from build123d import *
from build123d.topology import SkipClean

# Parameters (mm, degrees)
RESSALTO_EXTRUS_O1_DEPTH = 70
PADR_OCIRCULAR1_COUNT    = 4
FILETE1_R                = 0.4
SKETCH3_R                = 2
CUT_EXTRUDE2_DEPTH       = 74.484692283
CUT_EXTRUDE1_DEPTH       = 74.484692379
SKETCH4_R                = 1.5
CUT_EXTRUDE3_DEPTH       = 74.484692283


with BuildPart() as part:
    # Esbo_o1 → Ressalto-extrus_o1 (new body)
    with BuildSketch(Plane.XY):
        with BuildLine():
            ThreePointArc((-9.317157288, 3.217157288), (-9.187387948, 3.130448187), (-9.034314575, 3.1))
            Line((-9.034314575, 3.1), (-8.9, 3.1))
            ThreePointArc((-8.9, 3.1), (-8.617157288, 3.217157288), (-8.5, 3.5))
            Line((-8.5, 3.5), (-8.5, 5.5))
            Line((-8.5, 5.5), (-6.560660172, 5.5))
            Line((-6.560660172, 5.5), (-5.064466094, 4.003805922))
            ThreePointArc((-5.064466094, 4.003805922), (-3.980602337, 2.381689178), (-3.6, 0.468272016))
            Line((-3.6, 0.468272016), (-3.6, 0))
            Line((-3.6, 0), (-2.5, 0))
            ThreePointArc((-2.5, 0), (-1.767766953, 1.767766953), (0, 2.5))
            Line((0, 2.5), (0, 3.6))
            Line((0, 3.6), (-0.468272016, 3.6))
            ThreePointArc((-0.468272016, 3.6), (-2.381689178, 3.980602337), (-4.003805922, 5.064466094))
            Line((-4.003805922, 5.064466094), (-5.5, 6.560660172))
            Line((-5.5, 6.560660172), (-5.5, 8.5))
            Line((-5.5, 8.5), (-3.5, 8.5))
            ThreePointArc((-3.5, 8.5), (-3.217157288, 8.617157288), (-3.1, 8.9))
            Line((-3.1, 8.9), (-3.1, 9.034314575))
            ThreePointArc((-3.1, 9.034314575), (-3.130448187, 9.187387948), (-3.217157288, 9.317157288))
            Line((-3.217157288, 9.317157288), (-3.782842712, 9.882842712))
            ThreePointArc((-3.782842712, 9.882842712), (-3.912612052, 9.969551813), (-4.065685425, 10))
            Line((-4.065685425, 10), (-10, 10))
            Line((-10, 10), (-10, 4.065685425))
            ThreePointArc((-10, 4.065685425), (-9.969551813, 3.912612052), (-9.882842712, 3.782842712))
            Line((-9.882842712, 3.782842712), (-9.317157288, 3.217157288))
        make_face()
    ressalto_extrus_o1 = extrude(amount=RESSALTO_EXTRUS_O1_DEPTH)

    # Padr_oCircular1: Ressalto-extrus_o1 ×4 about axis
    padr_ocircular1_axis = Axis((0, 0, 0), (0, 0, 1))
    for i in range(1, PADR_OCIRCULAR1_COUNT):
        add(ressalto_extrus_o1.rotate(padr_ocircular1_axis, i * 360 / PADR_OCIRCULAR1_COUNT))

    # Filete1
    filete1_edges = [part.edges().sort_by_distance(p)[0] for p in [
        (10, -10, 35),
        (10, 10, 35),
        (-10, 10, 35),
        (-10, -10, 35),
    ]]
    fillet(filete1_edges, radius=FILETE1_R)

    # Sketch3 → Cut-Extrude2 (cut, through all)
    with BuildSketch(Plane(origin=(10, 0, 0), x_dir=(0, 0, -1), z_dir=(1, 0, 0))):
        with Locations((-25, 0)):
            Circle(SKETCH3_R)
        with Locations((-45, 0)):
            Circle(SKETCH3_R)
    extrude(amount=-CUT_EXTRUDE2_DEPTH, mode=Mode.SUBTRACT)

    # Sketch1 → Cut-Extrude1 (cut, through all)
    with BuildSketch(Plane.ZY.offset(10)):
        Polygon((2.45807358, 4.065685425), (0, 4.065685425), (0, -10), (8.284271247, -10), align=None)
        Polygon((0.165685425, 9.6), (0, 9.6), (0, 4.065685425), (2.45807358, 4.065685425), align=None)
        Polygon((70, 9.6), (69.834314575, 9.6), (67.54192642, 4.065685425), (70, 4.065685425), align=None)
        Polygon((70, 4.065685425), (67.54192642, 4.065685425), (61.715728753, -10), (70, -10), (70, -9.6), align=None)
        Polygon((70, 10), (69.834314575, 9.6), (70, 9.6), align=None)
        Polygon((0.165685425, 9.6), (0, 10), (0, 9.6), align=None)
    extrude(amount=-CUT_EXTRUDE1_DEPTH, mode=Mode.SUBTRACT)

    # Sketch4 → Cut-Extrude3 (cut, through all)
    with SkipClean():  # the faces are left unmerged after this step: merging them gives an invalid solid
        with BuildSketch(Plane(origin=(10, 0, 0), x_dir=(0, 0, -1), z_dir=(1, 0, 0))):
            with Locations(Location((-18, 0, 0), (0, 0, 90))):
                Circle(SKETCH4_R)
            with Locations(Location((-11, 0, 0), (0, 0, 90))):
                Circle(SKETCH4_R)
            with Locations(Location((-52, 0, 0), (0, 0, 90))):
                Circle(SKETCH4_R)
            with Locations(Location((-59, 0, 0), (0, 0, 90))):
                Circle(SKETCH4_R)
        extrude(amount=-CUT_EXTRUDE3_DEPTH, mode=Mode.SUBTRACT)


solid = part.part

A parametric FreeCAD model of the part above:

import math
import FreeCAD as App
import Part
import Sketcher

V = App.Vector
Q = App.Units.Quantity


def edges_at(feature, points):
    """Names of the edges that pass closest to the given points."""
    edges = feature.Shape.Edges
    near = lambda p: min(range(len(edges)), key=lambda i: edges[i].distToShape(Part.Vertex(*p))[0])
    return sorted({f"Edge{near(p) + 1}" for p in points})


def add_polygon(sketch, points):
    """Adds a closed chain of lines whose ends are joined by coincident constraints."""
    first, n = sketch.GeometryCount, len(points)
    for a, b in zip(points, points[1:] + points[:1]):
        sketch.addGeometry(Part.LineSegment(App.Vector(*a, 0), App.Vector(*b, 0)), False)
    for i in range(n):
        sketch.addConstraint(Sketcher.Constraint("Coincident", first + i, 2, first + (i + 1) % n, 1))

doc = App.newDocument("Part")
body = doc.addObject("PartDesign::Body", "Body")

sketch1 = doc.addObject("Sketcher::SketchObject", "Sketch")
body.addObject(sketch1)
sketch1.AttachmentSupport = (doc.XY_Plane, [""])
sketch1.MapMode = "FlatFace"
sketch1.addGeometry([
    Part.ArcOfCircle(Part.Circle(V(-9.03, 3.5, 0), V(0, 0, 1), 0.4), math.radians(-135), math.radians(-90)),
    Part.LineSegment(V(-9.03, 3.1, 0), V(-8.9, 3.1, 0)),
    Part.ArcOfCircle(Part.Circle(V(-8.9, 3.5, 0), V(0, 0, 1), 0.4), math.radians(-90), math.radians(0)),
    Part.LineSegment(V(-8.5, 3.5, 0), V(-8.5, 5.5, 0)),
    Part.LineSegment(V(-8.5, 5.5, 0), V(-6.56, 5.5, 0)),
    Part.LineSegment(V(-6.56, 5.5, 0), V(-5.06, 4, 0)),
    Part.ArcOfCircle(Part.Circle(V(-8.6, 0.47, 0), V(0, 0, 1), 5), math.radians(0), math.radians(45)),
    Part.LineSegment(V(-3.6, 0.47, 0), V(-3.6, 0, 0)),
    Part.LineSegment(V(-3.6, 0, 0), V(-2.5, 0, 0)),
    Part.ArcOfCircle(Part.Circle(V(0, 0, 0), V(0, 0, 1), 2.5), math.radians(90), math.radians(180)),
    Part.LineSegment(V(0, 2.5, 0), V(0, 3.6, 0)),
    Part.LineSegment(V(0, 3.6, 0), V(-0.47, 3.6, 0)),
    Part.ArcOfCircle(Part.Circle(V(-0.47, 8.6, 0), V(0, 0, 1), 5), math.radians(-135), math.radians(-90)),
    Part.LineSegment(V(-4, 5.06, 0), V(-5.5, 6.56, 0)),
    Part.LineSegment(V(-5.5, 6.56, 0), V(-5.5, 8.5, 0)),
    Part.LineSegment(V(-5.5, 8.5, 0), V(-3.5, 8.5, 0)),
    Part.ArcOfCircle(Part.Circle(V(-3.5, 8.9, 0), V(0, 0, 1), 0.4), math.radians(-90), math.radians(0)),
    Part.LineSegment(V(-3.1, 8.9, 0), V(-3.1, 9.03, 0)),
    Part.ArcOfCircle(Part.Circle(V(-3.5, 9.03, 0), V(0, 0, 1), 0.4), math.radians(0), math.radians(45)),
    Part.LineSegment(V(-3.22, 9.32, 0), V(-3.78, 9.88, 0)),
    Part.ArcOfCircle(Part.Circle(V(-4.07, 9.6, 0), V(0, 0, 1), 0.4), math.radians(45), math.radians(90)),
    Part.LineSegment(V(-4.07, 10, 0), V(-10, 10, 0)),
    Part.LineSegment(V(-10, 10, 0), V(-10, 4.07, 0)),
    Part.ArcOfCircle(Part.Circle(V(-9.6, 4.07, 0), V(0, 0, 1), 0.4), math.radians(180), math.radians(225)),
    Part.LineSegment(V(-9.88, 3.78, 0), V(-9.32, 3.22, 0)),
], False)
sketch1.addConstraint([
    Sketcher.Constraint("Tangent", 0, 2, 1, 1),
    Sketcher.Constraint("Tangent", 1, 2, 2, 1),
    Sketcher.Constraint("Tangent", 2, 2, 3, 1),
    Sketcher.Constraint("Coincident", 3, 2, 4, 1),
    Sketcher.Constraint("Coincident", 4, 2, 5, 1),
    Sketcher.Constraint("Tangent", 5, 2, 6, 2),
    Sketcher.Constraint("Tangent", 6, 1, 7, 1),
    Sketcher.Constraint("Coincident", 7, 2, 8, 1),
    Sketcher.Constraint("Coincident", 8, 2, 9, 2),
    Sketcher.Constraint("Coincident", 9, 1, 10, 1),
    Sketcher.Constraint("Coincident", 10, 2, 11, 1),
    Sketcher.Constraint("Tangent", 11, 2, 12, 2),
    Sketcher.Constraint("Tangent", 12, 1, 13, 1),
    Sketcher.Constraint("Coincident", 13, 2, 14, 1),
    Sketcher.Constraint("Coincident", 14, 2, 15, 1),
    Sketcher.Constraint("Tangent", 15, 2, 16, 1),
    Sketcher.Constraint("Tangent", 16, 2, 17, 1),
    Sketcher.Constraint("Tangent", 17, 2, 18, 1),
    Sketcher.Constraint("Tangent", 18, 2, 19, 1),
    Sketcher.Constraint("Tangent", 19, 2, 20, 1),
    Sketcher.Constraint("Tangent", 20, 2, 21, 1),
    Sketcher.Constraint("Coincident", 21, 2, 22, 1),
    Sketcher.Constraint("Tangent", 22, 2, 23, 1),
    Sketcher.Constraint("Tangent", 23, 2, 24, 1),
    Sketcher.Constraint("Tangent", 24, 2, 0, 1),
    Sketcher.Constraint("Horizontal", 1),
    Sketcher.Constraint("Vertical", 3),
    Sketcher.Constraint("Horizontal", 4),
    Sketcher.Constraint("Vertical", 7),
    Sketcher.Constraint("Horizontal", 8),
    Sketcher.Constraint("Vertical", 10),
    Sketcher.Constraint("Horizontal", 11),
    Sketcher.Constraint("Vertical", 14),
    Sketcher.Constraint("Horizontal", 15),
    Sketcher.Constraint("Vertical", 17),
    Sketcher.Constraint("Horizontal", 21),
    Sketcher.Constraint("Vertical", 22),
    Sketcher.Constraint("Coincident", 9, 3, -1, 1),
    Sketcher.Constraint("Equal", 0, 2),
    Sketcher.Constraint("Equal", 6, 12),
    Sketcher.Constraint("Equal", 2, 16),
    Sketcher.Constraint("Equal", 16, 18),
    Sketcher.Constraint("Equal", 18, 20),
    Sketcher.Constraint("Equal", 20, 23),
    Sketcher.Constraint("PointOnObject", 7, 2, -1),
    Sketcher.Constraint("PointOnObject", 9, 1, -2),
    Sketcher.Constraint("Parallel", 5, 13),
    Sketcher.Constraint("Parallel", 13, 19),
    Sketcher.Constraint("Parallel", 19, 24),
    Sketcher.Constraint("Equal", 15, 3),
    Sketcher.Constraint("Equal", 11, 7),
    Sketcher.Constraint("Equal", 8, 10),
    Sketcher.Constraint("Equal", 4, 14),
    Sketcher.Constraint("Equal", 1, 17),
    Sketcher.Constraint("Equal", 21, 22),
    Sketcher.Constraint("Equal", 5, 13),
    Sketcher.Constraint("Equal", 19, 24),
    Sketcher.Constraint("Radius", 6, 5.0),
    Sketcher.Constraint("Radius", 0, 0.4),
    Sketcher.Constraint("Radius", 9, 2.5),
    Sketcher.Constraint("DistanceX", 15, 1, 15, 2, 2.0),
    Sketcher.Constraint("DistanceX", 8, 1, 8, 2, 1.1),
    Sketcher.Constraint("DistanceY", -1, 1, 20, 2, 10.0),
    Sketcher.Constraint("DistanceY", 4, 2, 14, 2, 3.0),
    Sketcher.Constraint("Distance", 19, 0.8),
    Sketcher.Constraint("DistanceY", -1, 1, 0, 3, 3.5),
    Sketcher.Constraint("DistanceX", 4, 1, 4, 2, 1.93934),
])
pad1 = doc.addObject("PartDesign::Pad", "Pad")
body.addObject(pad1)
pad1.Profile = sketch1
pad1.Length = 70
doc.recompute()

polarpattern = doc.addObject("PartDesign::PolarPattern", "PolarPattern")
body.addObject(polarpattern)
polarpattern.Originals = [pad1]
polarpattern.Axis = (doc.Z_Axis, [""])
polarpattern.Angle = 360
polarpattern.Occurrences = 4
body.Tip = polarpattern
doc.recompute()

fillet = doc.addObject("PartDesign::Fillet", "Fillet")
body.addObject(fillet)
fillet.Base = (polarpattern, edges_at(polarpattern, [
    (10, -10, 35),
    (10, 10, 35),
    (-10, 10, 35),
    (-10, -10, 35),
]))
fillet.Radius = 0.4

sketch2 = doc.addObject("Sketcher::SketchObject", "Sketch001")
body.addObject(sketch2)
sketch2.AttachmentSupport = (doc.YZ_Plane, [""])
sketch2.MapMode = "FlatFace"
sketch2.AttachmentOffset = App.Placement(V(0, 0, 10), App.Rotation())
sketch2.addGeometry([
    Part.Circle(V(0, 25, 0), V(0, 0, 1), 2),
    Part.Circle(V(0, 45, 0), V(0, 0, 1), 2),
], False)
sketch2.addConstraint([
    Sketcher.Constraint("Equal", 0, 1),
    Sketcher.Constraint("PointOnObject", 0, 3, -2),
    Sketcher.Constraint("PointOnObject", 1, 3, -2),
    Sketcher.Constraint("Diameter", 0, 4.0),
    Sketcher.Constraint("DistanceY", -1, 1, 0, 3, 25.0),
    Sketcher.Constraint("DistanceY", -1, 1, 1, 3, 45.0),
])
pocket1 = doc.addObject("PartDesign::Pocket", "Pocket")
body.addObject(pocket1)
pocket1.Profile = sketch2
pocket1.Type = "ThroughAll"

sketch3 = doc.addObject("Sketcher::SketchObject", "Sketch002")
body.addObject(sketch3)
sketch3.AttachmentSupport = (doc.YZ_Plane, [""])
sketch3.MapMode = "FlatFace"
sketch3.AttachmentOffset = App.Placement(V(0, 0, -10), App.Rotation())
add_polygon(sketch3, [(-10, 0), (-10, 8.28), (4.07, 2.46), (9.6, 0.17), (10, 0)])
add_polygon(sketch3, [(9.6, 69.83), (4.07, 67.54), (-10, 61.72), (-10, 70), (10, 70)])
sketch3.addConstraint([
    Sketcher.Constraint("Vertical", 0),
    Sketcher.Constraint("Horizontal", 4),
    Sketcher.Constraint("Vertical", 7),
    Sketcher.Constraint("Horizontal", 8),
    Sketcher.Constraint("Symmetric", 3, 2, 4, 2, -1, 1),
    Sketcher.Constraint("Parallel", 1, 2),
    Sketcher.Constraint("Parallel", 2, 3),
    Sketcher.Constraint("Parallel", 5, 6),
    Sketcher.Constraint("Parallel", 6, 9),
    Sketcher.Constraint("Vertical", 1, 2, 5, 2),
    Sketcher.Constraint("Vertical", 4, 2, 6, 2),
    Sketcher.Constraint("Vertical", 3, 2, 8, 2),
    Sketcher.Constraint("Vertical", 2, 2, 9, 2),
    Sketcher.Constraint("Equal", 0, 7),
    Sketcher.Constraint("DistanceX", 4, 2, 4, 1, 20.0),
    Sketcher.Constraint("DistanceY", -1, 1, 7, 2, 70.0),
    Sketcher.Constraint("Angle", 1, Q("-22.5 deg")),
    Sketcher.Constraint("DistanceX", -1, 1, 2, 2, 9.6),
    Sketcher.Constraint("Distance", 2, 5.990299),
])
pocket2 = doc.addObject("PartDesign::Pocket", "Pocket001")
body.addObject(pocket2)
pocket2.Profile = sketch3
pocket2.Type = "ThroughAll"
pocket2.Reversed = True

sketch4 = doc.addObject("Sketcher::SketchObject", "Sketch003")
body.addObject(sketch4)
sketch4.AttachmentSupport = (doc.YZ_Plane, [""])
sketch4.MapMode = "FlatFace"
sketch4.AttachmentOffset = App.Placement(V(0, 0, 10), App.Rotation())
sketch4.addGeometry([
    Part.Circle(V(0, 18, 0), V(0, 0, 1), 1.5),
    Part.Circle(V(0, 11, 0), V(0, 0, 1), 1.5),
    Part.Circle(V(0, 52, 0), V(0, 0, 1), 1.5),
    Part.Circle(V(0, 59, 0), V(0, 0, 1), 1.5),
], False)
sketch4.addConstraint([
    Sketcher.Constraint("Equal", 0, 1),
    Sketcher.Constraint("Equal", 1, 2),
    Sketcher.Constraint("Equal", 2, 3),
    Sketcher.Constraint("PointOnObject", 0, 3, -2),
    Sketcher.Constraint("PointOnObject", 1, 3, -2),
    Sketcher.Constraint("PointOnObject", 2, 3, -2),
    Sketcher.Constraint("PointOnObject", 3, 3, -2),
    Sketcher.Constraint("Diameter", 0, 3.0),
    Sketcher.Constraint("DistanceY", -1, 1, 0, 3, 18.0),
    Sketcher.Constraint("DistanceY", -1, 1, 1, 3, 11.0),
    Sketcher.Constraint("DistanceY", -1, 1, 2, 3, 52.0),
    Sketcher.Constraint("DistanceY", -1, 1, 3, 3, 59.0),
])
pocket3 = doc.addObject("PartDesign::Pocket", "Pocket002")
body.addObject(pocket3)
pocket3.Profile = sketch4
pocket3.Type = "ThroughAll"

doc.recompute()
